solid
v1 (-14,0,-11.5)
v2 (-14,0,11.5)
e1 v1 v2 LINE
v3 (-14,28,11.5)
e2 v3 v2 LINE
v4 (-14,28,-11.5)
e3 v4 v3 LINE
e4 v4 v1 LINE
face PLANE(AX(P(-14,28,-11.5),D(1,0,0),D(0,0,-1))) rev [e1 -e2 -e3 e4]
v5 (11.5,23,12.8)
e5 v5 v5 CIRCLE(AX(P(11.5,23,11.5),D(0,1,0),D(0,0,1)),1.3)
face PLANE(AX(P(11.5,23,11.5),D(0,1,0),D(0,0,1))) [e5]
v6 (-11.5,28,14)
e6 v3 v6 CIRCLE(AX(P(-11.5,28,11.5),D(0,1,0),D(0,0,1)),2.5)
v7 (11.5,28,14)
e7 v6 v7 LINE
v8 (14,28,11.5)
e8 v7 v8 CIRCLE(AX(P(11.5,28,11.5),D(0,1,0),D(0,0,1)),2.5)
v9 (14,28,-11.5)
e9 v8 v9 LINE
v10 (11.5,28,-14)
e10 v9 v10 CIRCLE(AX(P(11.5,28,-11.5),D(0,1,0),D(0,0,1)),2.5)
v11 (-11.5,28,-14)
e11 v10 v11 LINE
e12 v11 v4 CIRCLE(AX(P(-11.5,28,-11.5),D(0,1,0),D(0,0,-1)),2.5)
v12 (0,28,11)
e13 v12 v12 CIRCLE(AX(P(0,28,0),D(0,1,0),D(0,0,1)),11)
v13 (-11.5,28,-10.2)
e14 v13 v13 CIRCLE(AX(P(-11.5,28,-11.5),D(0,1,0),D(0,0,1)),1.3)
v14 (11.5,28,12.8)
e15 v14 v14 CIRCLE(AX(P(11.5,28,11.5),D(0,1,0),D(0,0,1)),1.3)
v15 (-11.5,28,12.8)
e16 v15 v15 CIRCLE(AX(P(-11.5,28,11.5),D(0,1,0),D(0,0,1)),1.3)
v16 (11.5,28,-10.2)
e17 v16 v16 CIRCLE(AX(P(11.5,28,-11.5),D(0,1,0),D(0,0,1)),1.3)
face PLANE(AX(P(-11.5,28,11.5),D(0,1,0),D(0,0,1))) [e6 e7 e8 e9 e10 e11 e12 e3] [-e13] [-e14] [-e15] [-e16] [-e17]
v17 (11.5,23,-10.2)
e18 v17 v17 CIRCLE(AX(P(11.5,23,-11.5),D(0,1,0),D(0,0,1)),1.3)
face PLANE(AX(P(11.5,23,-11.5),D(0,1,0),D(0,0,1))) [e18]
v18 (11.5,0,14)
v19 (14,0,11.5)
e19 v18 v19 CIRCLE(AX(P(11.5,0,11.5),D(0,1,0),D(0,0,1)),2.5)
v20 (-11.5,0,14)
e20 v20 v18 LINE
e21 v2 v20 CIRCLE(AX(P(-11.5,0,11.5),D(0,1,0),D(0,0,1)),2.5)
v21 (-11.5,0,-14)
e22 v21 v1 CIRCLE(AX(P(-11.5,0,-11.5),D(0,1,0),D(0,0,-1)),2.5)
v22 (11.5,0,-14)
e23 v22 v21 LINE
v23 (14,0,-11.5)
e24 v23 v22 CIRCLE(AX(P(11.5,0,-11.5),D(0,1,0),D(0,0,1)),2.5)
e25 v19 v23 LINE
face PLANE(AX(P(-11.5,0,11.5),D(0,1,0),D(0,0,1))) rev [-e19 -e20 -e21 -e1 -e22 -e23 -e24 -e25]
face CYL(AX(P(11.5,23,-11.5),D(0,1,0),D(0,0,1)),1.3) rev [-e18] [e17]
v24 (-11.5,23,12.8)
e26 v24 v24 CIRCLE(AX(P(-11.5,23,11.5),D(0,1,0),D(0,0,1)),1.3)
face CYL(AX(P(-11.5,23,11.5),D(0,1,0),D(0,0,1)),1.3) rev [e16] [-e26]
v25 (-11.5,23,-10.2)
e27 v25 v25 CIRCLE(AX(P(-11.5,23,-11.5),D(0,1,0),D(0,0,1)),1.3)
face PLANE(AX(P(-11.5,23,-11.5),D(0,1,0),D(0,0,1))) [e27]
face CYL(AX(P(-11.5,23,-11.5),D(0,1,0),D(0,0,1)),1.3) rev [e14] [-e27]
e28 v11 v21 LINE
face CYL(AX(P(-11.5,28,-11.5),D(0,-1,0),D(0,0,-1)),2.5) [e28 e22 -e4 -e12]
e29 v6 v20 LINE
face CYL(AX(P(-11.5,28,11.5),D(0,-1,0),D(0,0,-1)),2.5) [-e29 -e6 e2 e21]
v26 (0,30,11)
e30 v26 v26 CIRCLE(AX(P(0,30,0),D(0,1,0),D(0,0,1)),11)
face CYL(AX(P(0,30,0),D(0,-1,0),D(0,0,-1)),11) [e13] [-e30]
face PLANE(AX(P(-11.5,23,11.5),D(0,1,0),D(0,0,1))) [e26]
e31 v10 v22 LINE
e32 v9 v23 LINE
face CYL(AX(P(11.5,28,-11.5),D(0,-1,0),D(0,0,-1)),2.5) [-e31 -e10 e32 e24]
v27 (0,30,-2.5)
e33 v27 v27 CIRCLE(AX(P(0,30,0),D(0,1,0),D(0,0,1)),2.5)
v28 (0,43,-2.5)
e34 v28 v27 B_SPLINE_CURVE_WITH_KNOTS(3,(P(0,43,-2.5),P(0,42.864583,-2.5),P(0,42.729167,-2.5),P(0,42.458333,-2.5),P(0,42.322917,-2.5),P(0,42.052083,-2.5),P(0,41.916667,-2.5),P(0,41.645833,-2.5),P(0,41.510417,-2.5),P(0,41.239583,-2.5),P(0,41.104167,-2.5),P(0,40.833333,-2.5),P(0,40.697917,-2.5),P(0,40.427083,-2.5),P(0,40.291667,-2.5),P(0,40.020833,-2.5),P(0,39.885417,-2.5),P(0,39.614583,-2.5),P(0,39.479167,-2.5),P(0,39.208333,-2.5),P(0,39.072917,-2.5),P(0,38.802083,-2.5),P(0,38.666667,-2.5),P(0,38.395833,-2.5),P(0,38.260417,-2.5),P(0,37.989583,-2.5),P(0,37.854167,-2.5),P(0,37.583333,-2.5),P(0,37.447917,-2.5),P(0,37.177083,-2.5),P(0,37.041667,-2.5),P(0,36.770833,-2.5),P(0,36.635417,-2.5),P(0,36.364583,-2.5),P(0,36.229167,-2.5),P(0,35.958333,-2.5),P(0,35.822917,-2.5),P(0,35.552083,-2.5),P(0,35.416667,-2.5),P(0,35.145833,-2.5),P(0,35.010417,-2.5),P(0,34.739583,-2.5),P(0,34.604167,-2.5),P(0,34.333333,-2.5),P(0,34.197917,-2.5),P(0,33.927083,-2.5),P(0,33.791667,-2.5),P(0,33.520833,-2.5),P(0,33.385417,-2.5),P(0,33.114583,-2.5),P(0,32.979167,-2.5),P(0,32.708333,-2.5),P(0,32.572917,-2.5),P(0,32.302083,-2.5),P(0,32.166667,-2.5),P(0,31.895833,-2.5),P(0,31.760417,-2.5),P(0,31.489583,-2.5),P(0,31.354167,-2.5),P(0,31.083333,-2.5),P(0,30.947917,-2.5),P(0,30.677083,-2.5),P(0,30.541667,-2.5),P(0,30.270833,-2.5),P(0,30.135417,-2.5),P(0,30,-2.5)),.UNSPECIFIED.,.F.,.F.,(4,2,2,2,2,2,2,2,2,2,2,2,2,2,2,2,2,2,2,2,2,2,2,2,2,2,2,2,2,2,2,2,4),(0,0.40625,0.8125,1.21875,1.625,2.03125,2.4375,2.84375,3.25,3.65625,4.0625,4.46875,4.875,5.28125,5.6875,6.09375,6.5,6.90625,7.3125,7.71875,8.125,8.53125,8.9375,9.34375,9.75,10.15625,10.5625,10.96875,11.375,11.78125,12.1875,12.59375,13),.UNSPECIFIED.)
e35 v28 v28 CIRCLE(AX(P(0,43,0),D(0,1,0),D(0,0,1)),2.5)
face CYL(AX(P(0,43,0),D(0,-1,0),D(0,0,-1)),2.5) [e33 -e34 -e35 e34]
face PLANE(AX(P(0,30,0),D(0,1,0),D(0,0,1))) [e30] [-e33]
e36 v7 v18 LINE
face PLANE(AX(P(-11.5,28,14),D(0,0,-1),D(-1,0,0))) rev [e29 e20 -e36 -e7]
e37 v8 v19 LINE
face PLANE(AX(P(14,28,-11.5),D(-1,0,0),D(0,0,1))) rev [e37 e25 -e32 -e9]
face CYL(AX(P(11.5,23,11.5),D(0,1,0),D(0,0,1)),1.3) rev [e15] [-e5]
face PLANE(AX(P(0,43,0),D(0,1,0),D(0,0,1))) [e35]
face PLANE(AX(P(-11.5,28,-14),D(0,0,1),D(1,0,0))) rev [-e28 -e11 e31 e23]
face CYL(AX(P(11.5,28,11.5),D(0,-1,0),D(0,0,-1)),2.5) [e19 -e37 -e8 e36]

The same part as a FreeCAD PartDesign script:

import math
import FreeCAD as App
import Part
import Sketcher

V = App.Vector

doc = App.newDocument("Part")
body = doc.addObject("PartDesign::Body", "Body")

# Sketch on XZ plane
sketch1 = doc.addObject("Sketcher::SketchObject", "Sketch")
body.addObject(sketch1)
sketch1.AttachmentSupport = (doc.XZ_Plane, [""])
sketch1.MapMode = "FlatFace"
sketch1.addGeometry(Part.LineSegment(V(11.5, -14, 0), V(-11.5, -14, 0)), False)
sketch1.addGeometry(Part.ArcOfCircle(Part.Circle(V(-11.5, -11.5, 0), V(0, 0, 1), 2.5), math.radians(180), math.radians(270)), False)
sketch1.addGeometry(Part.LineSegment(V(-14, -11.5, 0), V(-14, 11.5, 0)), False)
sketch1.addGeometry(Part.ArcOfCircle(Part.Circle(V(-11.5, 11.5, 0), V(0, 0, 1), 2.5), math.radians(90), math.radians(180)), False)
sketch1.addGeometry(Part.LineSegment(V(-11.5, 14, 0), V(11.5, 14, 0)), False)
sketch1.addGeometry(Part.ArcOfCircle(Part.Circle(V(11.5, 11.5, 0), V(0, 0, 1), 2.5), math.radians(0), math.radians(90)), False)
sketch1.addGeometry(Part.LineSegment(V(14, 11.5, 0), V(14, -11.5, 0)), False)
sketch1.addGeometry(Part.ArcOfCircle(Part.Circle(V(11.5, -11.5, 0), V(0, 0, 1), 2.5), math.radians(-90), math.radians(0)), False)
sketch1.addConstraint(Sketcher.Constraint("Tangent", 0, 2, 1, 2))
sketch1.addConstraint(Sketcher.Constraint("Tangent", 1, 1, 2, 1))
sketch1.addConstraint(Sketcher.Constraint("Tangent", 2, 2, 3, 2))
sketch1.addConstraint(Sketcher.Constraint("Tangent", 3, 1, 4, 1))
sketch1.addConstraint(Sketcher.Constraint("Tangent", 4, 2, 5, 2))
sketch1.addConstraint(Sketcher.Constraint("Tangent", 5, 1, 6, 1))
sketch1.addConstraint(Sketcher.Constraint("Tangent", 6, 2, 7, 2))
sketch1.addConstraint(Sketcher.Constraint("Tangent", 7, 1, 0, 1))
sketch1.addConstraint(Sketcher.Constraint("Horizontal", 0))
sketch1.addConstraint(Sketcher.Constraint("Vertical", 2))
sketch1.addConstraint(Sketcher.Constraint("Horizontal", 4))
sketch1.addConstraint(Sketcher.Constraint("Vertical", 6))
sketch1.addConstraint(Sketcher.Constraint("Equal", 1, 3))
sketch1.addConstraint(Sketcher.Constraint("Equal", 3, 5))
sketch1.addConstraint(Sketcher.Constraint("Equal", 5, 7))
sketch1.addConstraint(Sketcher.Constraint("Symmetric", 1, 3, 5, 3, -1, 1))
sketch1.addConstraint(Sketcher.Constraint("Equal", 4, 2))
sketch1.addConstraint(Sketcher.Constraint("Radius", 1, 2.5))
sketch1.addConstraint(Sketcher.Constraint("DistanceX", 0, 2, 0, 1, 23.0))
pad1 = doc.addObject("PartDesign::Pad", "Pad")
body.addObject(pad1)
pad1.Profile = sketch1
pad1.Length = 28
pad1.Reversed = True

# Sketch on XZ plane
sketch2 = doc.addObject("Sketcher::SketchObject", "Sketch001")
body.addObject(sketch2)
sketch2.AttachmentSupport = (doc.XZ_Plane, [""])
sketch2.MapMode = "FlatFace"
sketch2.AttachmentOffset = App.Placement(V(0, 0, -28), App.Rotation())
sketch2.addGeometry(Part.Circle(V(0, 0, 0), V(0, 0, 1), 11), False)
sketch2.addConstraint(Sketcher.Constraint("Coincident", 0, 3, -1, 1))
sketch2.addConstraint(Sketcher.Constraint("Diameter", 0, 22.0))
pad2 = doc.addObject("PartDesign::Pad", "Pad001")
body.addObject(pad2)
pad2.Profile = sketch2
pad2.Length = 2
pad2.Reversed = True

# Sketch on XZ plane
sketch3 = doc.addObject("Sketcher::SketchObject", "Sketch002")
body.addObject(sketch3)
sketch3.AttachmentSupport = (doc.XZ_Plane, [""])
sketch3.MapMode = "FlatFace"
sketch3.AttachmentOffset = App.Placement(V(0, 0, -30), App.Rotation())
sketch3.addGeometry(Part.Circle(V(0, 0, 0), V(0, 0, 1), 2.5), False)
sketch3.addConstraint(Sketcher.Constraint("Coincident", 0, 3, -1, 1))
sketch3.addConstraint(Sketcher.Constraint("Diameter", 0, 5.0))
pad3 = doc.addObject("PartDesign::Pad", "Pad002")
body.addObject(pad3)
pad3.Profile = sketch3
pad3.Length = 13
pad3.Reversed = True

# Sketch on XZ plane
sketch4 = doc.addObject("Sketcher::SketchObject", "Sketch003")
body.addObject(sketch4)
sketch4.AttachmentSupport = (doc.XZ_Plane, [""])
sketch4.MapMode = "FlatFace"
sketch4.AttachmentOffset = App.Placement(V(0, 0, -28), App.Rotation())
sketch4.addGeometry(Part.Circle(V(-11.5, 11.5, 0), V(0, 0, 1), 1.3), False)
sketch4.addGeometry(Part.Circle(V(-11.5, -11.5, 0), V(0, 0, 1), 1.3), False)
sketch4.addGeometry(Part.Circle(V(11.5, -11.5, 0), V(0, 0, 1), 1.3), False)
sketch4.addGeometry(Part.Circle(V(11.5, 11.5, 0), V(0, 0, 1), 1.3), False)
sketch4.addConstraint(Sketcher.Constraint("Equal", 0, 1))
sketch4.addConstraint(Sketcher.Constraint("Equal", 1, 2))
sketch4.addConstraint(Sketcher.Constraint("Equal", 2, 3))
sketch4.addConstraint(Sketcher.Constraint("Symmetric", 0, 3, 2, 3, -1, 1))
sketch4.addConstraint(Sketcher.Constraint("Symmetric", 1, 3, 3, 3, -1, 1))
sketch4.addConstraint(Sketcher.Constraint("Symmetric", 1, 3, 2, 3, -2))
sketch4.addConstraint(Sketcher.Constraint("Diameter", 0, 2.6))
sketch4.addConstraint(Sketcher.Constraint("DistanceY", 1, 3, 0, 3, 23.0))
sketch4.addConstraint(Sketcher.Constraint("DistanceX", 1, 3, 2, 3, 23.0))
pocket1 = doc.addObject("PartDesign::Pocket", "Pocket")
body.addObject(pocket1)
pocket1.Profile = sketch4
pocket1.Length = 5
pocket1.Reversed = True

doc.recompute()
